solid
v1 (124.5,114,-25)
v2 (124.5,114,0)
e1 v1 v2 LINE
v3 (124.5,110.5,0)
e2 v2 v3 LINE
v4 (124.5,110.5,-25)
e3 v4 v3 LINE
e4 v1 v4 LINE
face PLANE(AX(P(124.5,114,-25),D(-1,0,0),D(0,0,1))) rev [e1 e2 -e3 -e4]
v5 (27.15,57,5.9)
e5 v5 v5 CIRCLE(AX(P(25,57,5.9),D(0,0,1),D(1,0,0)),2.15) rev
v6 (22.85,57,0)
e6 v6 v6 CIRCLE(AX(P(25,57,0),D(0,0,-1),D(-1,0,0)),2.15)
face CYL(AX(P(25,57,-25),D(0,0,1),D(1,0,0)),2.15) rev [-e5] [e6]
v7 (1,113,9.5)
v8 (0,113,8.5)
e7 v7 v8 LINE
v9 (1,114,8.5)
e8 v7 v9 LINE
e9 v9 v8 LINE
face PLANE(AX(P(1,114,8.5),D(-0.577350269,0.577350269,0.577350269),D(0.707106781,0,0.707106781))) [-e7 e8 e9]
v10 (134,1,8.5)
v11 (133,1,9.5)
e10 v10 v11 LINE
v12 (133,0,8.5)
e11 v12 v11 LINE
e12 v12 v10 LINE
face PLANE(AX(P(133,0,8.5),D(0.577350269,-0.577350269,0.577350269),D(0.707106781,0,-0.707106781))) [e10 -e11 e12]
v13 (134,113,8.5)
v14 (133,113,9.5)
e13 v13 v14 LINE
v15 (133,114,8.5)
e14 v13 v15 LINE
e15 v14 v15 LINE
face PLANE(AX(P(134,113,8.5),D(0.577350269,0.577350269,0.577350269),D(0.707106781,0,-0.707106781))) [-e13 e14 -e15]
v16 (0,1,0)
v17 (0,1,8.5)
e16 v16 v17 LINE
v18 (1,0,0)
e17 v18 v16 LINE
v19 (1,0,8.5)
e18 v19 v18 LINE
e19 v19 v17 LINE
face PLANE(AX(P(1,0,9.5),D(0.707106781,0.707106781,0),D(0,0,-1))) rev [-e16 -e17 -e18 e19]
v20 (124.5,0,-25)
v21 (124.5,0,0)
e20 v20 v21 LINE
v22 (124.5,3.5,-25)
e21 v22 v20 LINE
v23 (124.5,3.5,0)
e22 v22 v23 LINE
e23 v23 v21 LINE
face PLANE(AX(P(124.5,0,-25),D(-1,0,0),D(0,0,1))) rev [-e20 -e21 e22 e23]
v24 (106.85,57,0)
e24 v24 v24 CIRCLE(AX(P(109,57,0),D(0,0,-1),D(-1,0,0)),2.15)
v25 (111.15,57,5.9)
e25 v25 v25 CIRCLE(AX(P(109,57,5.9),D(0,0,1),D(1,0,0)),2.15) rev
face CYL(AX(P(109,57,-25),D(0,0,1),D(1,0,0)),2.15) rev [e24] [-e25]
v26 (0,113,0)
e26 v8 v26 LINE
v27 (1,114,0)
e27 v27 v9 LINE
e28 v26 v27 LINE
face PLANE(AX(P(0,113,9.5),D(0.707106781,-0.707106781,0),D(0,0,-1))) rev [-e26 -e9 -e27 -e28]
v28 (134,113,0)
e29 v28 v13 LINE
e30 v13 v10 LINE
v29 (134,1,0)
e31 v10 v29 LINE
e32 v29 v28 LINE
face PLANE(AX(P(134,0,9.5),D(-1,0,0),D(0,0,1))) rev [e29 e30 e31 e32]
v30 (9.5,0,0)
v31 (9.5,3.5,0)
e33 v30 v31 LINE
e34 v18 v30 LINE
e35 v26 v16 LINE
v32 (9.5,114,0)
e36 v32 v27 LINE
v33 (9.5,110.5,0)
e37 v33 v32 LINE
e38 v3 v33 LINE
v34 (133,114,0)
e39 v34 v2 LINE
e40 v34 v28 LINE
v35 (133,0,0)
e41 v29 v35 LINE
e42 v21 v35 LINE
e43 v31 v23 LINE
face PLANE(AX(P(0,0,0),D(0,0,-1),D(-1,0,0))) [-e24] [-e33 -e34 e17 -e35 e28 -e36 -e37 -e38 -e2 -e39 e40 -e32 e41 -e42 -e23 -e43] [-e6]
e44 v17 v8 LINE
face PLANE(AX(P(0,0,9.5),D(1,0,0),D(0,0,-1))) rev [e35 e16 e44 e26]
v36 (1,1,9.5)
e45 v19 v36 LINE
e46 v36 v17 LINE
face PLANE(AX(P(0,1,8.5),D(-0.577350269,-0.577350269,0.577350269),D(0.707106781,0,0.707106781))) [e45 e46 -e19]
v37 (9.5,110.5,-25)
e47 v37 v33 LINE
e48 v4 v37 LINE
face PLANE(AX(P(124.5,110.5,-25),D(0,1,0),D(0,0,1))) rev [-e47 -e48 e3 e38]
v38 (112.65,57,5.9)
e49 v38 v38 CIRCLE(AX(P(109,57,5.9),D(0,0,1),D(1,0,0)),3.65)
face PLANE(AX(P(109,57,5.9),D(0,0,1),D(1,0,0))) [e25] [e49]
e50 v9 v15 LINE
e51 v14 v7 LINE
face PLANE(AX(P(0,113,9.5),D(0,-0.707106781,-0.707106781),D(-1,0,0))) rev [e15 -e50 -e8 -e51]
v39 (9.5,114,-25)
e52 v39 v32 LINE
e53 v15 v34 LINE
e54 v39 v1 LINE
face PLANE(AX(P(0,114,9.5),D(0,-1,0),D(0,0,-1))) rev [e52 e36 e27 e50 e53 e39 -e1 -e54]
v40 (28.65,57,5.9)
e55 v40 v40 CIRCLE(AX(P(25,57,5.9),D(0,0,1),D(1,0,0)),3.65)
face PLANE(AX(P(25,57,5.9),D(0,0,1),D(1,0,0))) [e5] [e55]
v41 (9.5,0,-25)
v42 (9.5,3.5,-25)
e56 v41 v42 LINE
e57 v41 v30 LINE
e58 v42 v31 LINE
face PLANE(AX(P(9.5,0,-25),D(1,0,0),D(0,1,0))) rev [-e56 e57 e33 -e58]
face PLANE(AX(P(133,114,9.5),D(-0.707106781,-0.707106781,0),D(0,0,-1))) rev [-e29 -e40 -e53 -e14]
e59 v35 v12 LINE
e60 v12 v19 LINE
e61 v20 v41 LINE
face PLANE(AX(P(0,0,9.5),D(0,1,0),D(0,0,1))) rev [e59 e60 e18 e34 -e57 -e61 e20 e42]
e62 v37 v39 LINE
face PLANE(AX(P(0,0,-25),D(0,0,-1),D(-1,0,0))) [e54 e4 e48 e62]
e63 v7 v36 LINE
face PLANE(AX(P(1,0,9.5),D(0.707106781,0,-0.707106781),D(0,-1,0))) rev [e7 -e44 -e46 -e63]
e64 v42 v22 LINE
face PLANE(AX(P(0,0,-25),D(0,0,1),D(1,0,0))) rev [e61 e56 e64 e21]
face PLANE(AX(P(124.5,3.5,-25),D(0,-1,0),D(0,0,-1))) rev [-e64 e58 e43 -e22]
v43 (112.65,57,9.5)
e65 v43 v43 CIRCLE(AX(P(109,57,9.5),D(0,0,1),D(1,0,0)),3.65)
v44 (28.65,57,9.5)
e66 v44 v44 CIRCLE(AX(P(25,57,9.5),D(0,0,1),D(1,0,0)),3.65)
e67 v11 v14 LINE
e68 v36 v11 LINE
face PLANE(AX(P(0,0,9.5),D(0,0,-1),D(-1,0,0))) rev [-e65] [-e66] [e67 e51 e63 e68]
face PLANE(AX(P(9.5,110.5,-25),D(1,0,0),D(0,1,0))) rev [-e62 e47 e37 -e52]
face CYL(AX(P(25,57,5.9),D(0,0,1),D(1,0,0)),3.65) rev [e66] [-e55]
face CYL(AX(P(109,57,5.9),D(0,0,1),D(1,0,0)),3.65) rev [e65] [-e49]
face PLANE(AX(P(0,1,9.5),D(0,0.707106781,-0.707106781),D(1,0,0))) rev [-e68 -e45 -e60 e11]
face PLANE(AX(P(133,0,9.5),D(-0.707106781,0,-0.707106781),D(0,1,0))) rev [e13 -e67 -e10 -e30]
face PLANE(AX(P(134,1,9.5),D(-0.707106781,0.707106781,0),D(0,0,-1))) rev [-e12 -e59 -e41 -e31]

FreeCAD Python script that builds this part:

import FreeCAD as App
import Part
import Sketcher
from FreeCAD import Vector


def edges_at(feature, points):
    """Names of the edges that pass closest to the given points."""
    edges = feature.Shape.Edges
    near = lambda p: min(range(len(edges)), key=lambda i: edges[i].distToShape(Part.Vertex(*p))[0])
    return sorted({f"Edge{near(p) + 1}" for p in points})

doc = App.newDocument("Part")
body = doc.addObject("PartDesign::Body", "Body")

# Sketch on XY plane
sketch1 = body.newObject("Sketcher::SketchObject", "Sketch")
sketch1.AttachmentSupport = (doc.getObject("XY_Plane"), [""])
sketch1.MapMode = "FlatFace"
sketch1.addGeometry(Part.LineSegment(Vector(0, 114, 0), Vector(0, 0, 0)), False)
sketch1.addGeometry(Part.LineSegment(Vector(0, 0, 0), Vector(134, 0, 0)), False)
sketch1.addGeometry(Part.LineSegment(Vector(134, 0, 0), Vector(134, 114, 0)), False)
sketch1.addGeometry(Part.LineSegment(Vector(134, 114, 0), Vector(0, 114, 0)), False)
sketch1.addConstraint(Sketcher.Constraint("Coincident", 0, 2, 1, 1))
sketch1.addConstraint(Sketcher.Constraint("Coincident", 1, 2, 2, 1))
sketch1.addConstraint(Sketcher.Constraint("Coincident", 2, 2, 3, 1))
sketch1.addConstraint(Sketcher.Constraint("Coincident", 3, 2, 0, 1))
sketch1.addConstraint(Sketcher.Constraint("Vertical", 0))
sketch1.addConstraint(Sketcher.Constraint("Horizontal", 1))
sketch1.addConstraint(Sketcher.Constraint("Vertical", 2))
sketch1.addConstraint(Sketcher.Constraint("Horizontal", 3))
sketch1.addConstraint(Sketcher.Constraint("Coincident", 0, 2, -1, 1))
sketch1.addConstraint(Sketcher.Constraint("DistanceX", 1, 1, 1, 2, 134.0))
sketch1.addConstraint(Sketcher.Constraint("DistanceY", 0, 2, 0, 1, 114.0))
pad1 = body.newObject("PartDesign::Pad", "Pad")
pad1.Profile = sketch1
pad1.Length = 9.5

# Sketch on XY plane
sketch2 = body.newObject("Sketcher::SketchObject", "Sketch001")
sketch2.AttachmentSupport = (doc.getObject("XY_Plane"), [""])
sketch2.MapMode = "FlatFace"
sketch2.addGeometry(Part.LineSegment(Vector(124.5, 114, 0), Vector(124.5, 110.5, 0)), False)
sketch2.addGeometry(Part.LineSegment(Vector(124.5, 110.5, 0), Vector(9.5, 110.5, 0)), False)
sketch2.addGeometry(Part.LineSegment(Vector(9.5, 110.5, 0), Vector(9.5, 114, 0)), False)
sketch2.addGeometry(Part.LineSegment(Vector(9.5, 114, 0), Vector(124.5, 114, 0)), False)
sketch2.addGeometry(Part.LineSegment(Vector(124.5, 3.5, 0), Vector(124.5, 0, 0)), False)
sketch2.addGeometry(Part.LineSegment(Vector(124.5, 0, 0), Vector(9.5, 0, 0)), False)
sketch2.addGeometry(Part.LineSegment(Vector(9.5, 0, 0), Vector(9.5, 3.5, 0)), False)
sketch2.addGeometry(Part.LineSegment(Vector(9.5, 3.5, 0), Vector(124.5, 3.5, 0)), False)
sketch2.addConstraint(Sketcher.Constraint("Coincident", 0, 2, 1, 1))
sketch2.addConstraint(Sketcher.Constraint("Coincident", 1, 2, 2, 1))
sketch2.addConstraint(Sketcher.Constraint("Coincident", 2, 2, 3, 1))
sketch2.addConstraint(Sketcher.Constraint("Coincident", 3, 2, 0, 1))
sketch2.addConstraint(Sketcher.Constraint("Coincident", 4, 2, 5, 1))
sketch2.addConstraint(Sketcher.Constraint("Coincident", 5, 2, 6, 1))
sketch2.addConstraint(Sketcher.Constraint("Coincident", 6, 2, 7, 1))
sketch2.addConstraint(Sketcher.Constraint("Coincident", 7, 2, 4, 1))
sketch2.addConstraint(Sketcher.Constraint("Vertical", 0))
sketch2.addConstraint(Sketcher.Constraint("Horizontal", 1))
sketch2.addConstraint(Sketcher.Constraint("Vertical", 2))
sketch2.addConstraint(Sketcher.Constraint("Horizontal", 3))
sketch2.addConstraint(Sketcher.Constraint("Vertical", 4))
sketch2.addConstraint(Sketcher.Constraint("Horizontal", 5))
sketch2.addConstraint(Sketcher.Constraint("Vertical", 6))
sketch2.addConstraint(Sketcher.Constraint("Horizontal", 7))
sketch2.addConstraint(Sketcher.Constraint("PointOnObject", 4, 2, -1))
sketch2.addConstraint(Sketcher.Constraint("Vertical", 3, 2, 4, 2))
sketch2.addConstraint(Sketcher.Constraint("Vertical", 2, 2, 5, 2))
sketch2.addConstraint(Sketcher.Constraint("Equal", 2, 4))
sketch2.addConstraint(Sketcher.Constraint("DistanceX", 1, 2, 1, 1, 115.0))
sketch2.addConstraint(Sketcher.Constraint("DistanceY", 0, 2, 0, 1, 3.5))
sketch2.addConstraint(Sketcher.Constraint("DistanceY", -1, 1, 2, 2, 114.0))
sketch2.addConstraint(Sketcher.Constraint("DistanceX", -1, 1, 0, 2, 124.5))
pad2 = body.newObject("PartDesign::Pad", "Pad001")
pad2.Profile = sketch2
pad2.Length = 25
pad2.Reversed = True

# Sketch on XY plane
sketch3 = body.newObject("Sketcher::SketchObject", "Sketch002")
sketch3.AttachmentSupport = (doc.getObject("XY_Plane"), [""])
sketch3.MapMode = "FlatFace"
sketch3.AttachmentOffset = App.Placement(Vector(0, 0, 9.5), App.Rotation())
sketch3.addGeometry(Part.Circle(Vector(25, 57, 0), Vector(0, 0, 1), 2.15), False)
sketch3.addGeometry(Part.Circle(Vector(109, 57, 0), Vector(0, 0, 1), 2.15), False)
sketch3.addConstraint(Sketcher.Constraint("Equal", 0, 1))
sketch3.addConstraint(Sketcher.Constraint("Horizontal", 0, 3, 1, 3))
sketch3.addConstraint(Sketcher.Constraint("Diameter", 0, 4.3))
sketch3.addConstraint(Sketcher.Constraint("DistanceX", -1, 1, 0, 3, 25.0))
sketch3.addConstraint(Sketcher.Constraint("DistanceY", -1, 1, 0, 3, 57.0))
sketch3.addConstraint(Sketcher.Constraint("DistanceX", -1, 1, 1, 3, 109.0))
pocket1 = body.newObject("PartDesign::Pocket", "Pocket")
pocket1.Profile = sketch3
pocket1.Type = "ThroughAll"

# Sketch on XY plane
sketch4 = body.newObject("Sketcher::SketchObject", "Sketch003")
sketch4.AttachmentSupport = (doc.getObject("XY_Plane"), [""])
sketch4.MapMode = "FlatFace"
sketch4.AttachmentOffset = App.Placement(Vector(0, 0, 9.5), App.Rotation())
sketch4.addGeometry(Part.Circle(Vector(25, 57, 0), Vector(0, 0, 1), 3.65), False)
sketch4.addGeometry(Part.Circle(Vector(109, 57, 0), Vector(0, 0, 1), 3.65), False)
sketch4.addConstraint(Sketcher.Constraint("Equal", 0, 1))
sketch4.addConstraint(Sketcher.Constraint("Horizontal", 0, 3, 1, 3))
sketch4.addConstraint(Sketcher.Constraint("Diameter", 0, 7.3))
sketch4.addConstraint(Sketcher.Constraint("DistanceX", -1, 1, 0, 3, 25.0))
sketch4.addConstraint(Sketcher.Constraint("DistanceY", -1, 1, 0, 3, 57.0))
sketch4.addConstraint(Sketcher.Constraint("DistanceX", -1, 1, 1, 3, 109.0))
pocket2 = body.newObject("PartDesign::Pocket", "Pocket001")
pocket2.Profile = sketch4
pocket2.Length = 3.6
doc.recompute()

chamfer = body.newObject("PartDesign::Chamfer", "Chamfer")
chamfer.Base = (pocket2, edges_at(pocket2, [
    (134, 57, 9.5),
    (67, 114, 9.5),
    (0, 57, 9.5),
    (67, 0, 9.5),
    (0, 114, 4.75),
    (134, 114, 4.75),
    (134, 0, 4.75),
    (0, 0, 4.75),
]))
chamfer.Size = 1

doc.recompute()
